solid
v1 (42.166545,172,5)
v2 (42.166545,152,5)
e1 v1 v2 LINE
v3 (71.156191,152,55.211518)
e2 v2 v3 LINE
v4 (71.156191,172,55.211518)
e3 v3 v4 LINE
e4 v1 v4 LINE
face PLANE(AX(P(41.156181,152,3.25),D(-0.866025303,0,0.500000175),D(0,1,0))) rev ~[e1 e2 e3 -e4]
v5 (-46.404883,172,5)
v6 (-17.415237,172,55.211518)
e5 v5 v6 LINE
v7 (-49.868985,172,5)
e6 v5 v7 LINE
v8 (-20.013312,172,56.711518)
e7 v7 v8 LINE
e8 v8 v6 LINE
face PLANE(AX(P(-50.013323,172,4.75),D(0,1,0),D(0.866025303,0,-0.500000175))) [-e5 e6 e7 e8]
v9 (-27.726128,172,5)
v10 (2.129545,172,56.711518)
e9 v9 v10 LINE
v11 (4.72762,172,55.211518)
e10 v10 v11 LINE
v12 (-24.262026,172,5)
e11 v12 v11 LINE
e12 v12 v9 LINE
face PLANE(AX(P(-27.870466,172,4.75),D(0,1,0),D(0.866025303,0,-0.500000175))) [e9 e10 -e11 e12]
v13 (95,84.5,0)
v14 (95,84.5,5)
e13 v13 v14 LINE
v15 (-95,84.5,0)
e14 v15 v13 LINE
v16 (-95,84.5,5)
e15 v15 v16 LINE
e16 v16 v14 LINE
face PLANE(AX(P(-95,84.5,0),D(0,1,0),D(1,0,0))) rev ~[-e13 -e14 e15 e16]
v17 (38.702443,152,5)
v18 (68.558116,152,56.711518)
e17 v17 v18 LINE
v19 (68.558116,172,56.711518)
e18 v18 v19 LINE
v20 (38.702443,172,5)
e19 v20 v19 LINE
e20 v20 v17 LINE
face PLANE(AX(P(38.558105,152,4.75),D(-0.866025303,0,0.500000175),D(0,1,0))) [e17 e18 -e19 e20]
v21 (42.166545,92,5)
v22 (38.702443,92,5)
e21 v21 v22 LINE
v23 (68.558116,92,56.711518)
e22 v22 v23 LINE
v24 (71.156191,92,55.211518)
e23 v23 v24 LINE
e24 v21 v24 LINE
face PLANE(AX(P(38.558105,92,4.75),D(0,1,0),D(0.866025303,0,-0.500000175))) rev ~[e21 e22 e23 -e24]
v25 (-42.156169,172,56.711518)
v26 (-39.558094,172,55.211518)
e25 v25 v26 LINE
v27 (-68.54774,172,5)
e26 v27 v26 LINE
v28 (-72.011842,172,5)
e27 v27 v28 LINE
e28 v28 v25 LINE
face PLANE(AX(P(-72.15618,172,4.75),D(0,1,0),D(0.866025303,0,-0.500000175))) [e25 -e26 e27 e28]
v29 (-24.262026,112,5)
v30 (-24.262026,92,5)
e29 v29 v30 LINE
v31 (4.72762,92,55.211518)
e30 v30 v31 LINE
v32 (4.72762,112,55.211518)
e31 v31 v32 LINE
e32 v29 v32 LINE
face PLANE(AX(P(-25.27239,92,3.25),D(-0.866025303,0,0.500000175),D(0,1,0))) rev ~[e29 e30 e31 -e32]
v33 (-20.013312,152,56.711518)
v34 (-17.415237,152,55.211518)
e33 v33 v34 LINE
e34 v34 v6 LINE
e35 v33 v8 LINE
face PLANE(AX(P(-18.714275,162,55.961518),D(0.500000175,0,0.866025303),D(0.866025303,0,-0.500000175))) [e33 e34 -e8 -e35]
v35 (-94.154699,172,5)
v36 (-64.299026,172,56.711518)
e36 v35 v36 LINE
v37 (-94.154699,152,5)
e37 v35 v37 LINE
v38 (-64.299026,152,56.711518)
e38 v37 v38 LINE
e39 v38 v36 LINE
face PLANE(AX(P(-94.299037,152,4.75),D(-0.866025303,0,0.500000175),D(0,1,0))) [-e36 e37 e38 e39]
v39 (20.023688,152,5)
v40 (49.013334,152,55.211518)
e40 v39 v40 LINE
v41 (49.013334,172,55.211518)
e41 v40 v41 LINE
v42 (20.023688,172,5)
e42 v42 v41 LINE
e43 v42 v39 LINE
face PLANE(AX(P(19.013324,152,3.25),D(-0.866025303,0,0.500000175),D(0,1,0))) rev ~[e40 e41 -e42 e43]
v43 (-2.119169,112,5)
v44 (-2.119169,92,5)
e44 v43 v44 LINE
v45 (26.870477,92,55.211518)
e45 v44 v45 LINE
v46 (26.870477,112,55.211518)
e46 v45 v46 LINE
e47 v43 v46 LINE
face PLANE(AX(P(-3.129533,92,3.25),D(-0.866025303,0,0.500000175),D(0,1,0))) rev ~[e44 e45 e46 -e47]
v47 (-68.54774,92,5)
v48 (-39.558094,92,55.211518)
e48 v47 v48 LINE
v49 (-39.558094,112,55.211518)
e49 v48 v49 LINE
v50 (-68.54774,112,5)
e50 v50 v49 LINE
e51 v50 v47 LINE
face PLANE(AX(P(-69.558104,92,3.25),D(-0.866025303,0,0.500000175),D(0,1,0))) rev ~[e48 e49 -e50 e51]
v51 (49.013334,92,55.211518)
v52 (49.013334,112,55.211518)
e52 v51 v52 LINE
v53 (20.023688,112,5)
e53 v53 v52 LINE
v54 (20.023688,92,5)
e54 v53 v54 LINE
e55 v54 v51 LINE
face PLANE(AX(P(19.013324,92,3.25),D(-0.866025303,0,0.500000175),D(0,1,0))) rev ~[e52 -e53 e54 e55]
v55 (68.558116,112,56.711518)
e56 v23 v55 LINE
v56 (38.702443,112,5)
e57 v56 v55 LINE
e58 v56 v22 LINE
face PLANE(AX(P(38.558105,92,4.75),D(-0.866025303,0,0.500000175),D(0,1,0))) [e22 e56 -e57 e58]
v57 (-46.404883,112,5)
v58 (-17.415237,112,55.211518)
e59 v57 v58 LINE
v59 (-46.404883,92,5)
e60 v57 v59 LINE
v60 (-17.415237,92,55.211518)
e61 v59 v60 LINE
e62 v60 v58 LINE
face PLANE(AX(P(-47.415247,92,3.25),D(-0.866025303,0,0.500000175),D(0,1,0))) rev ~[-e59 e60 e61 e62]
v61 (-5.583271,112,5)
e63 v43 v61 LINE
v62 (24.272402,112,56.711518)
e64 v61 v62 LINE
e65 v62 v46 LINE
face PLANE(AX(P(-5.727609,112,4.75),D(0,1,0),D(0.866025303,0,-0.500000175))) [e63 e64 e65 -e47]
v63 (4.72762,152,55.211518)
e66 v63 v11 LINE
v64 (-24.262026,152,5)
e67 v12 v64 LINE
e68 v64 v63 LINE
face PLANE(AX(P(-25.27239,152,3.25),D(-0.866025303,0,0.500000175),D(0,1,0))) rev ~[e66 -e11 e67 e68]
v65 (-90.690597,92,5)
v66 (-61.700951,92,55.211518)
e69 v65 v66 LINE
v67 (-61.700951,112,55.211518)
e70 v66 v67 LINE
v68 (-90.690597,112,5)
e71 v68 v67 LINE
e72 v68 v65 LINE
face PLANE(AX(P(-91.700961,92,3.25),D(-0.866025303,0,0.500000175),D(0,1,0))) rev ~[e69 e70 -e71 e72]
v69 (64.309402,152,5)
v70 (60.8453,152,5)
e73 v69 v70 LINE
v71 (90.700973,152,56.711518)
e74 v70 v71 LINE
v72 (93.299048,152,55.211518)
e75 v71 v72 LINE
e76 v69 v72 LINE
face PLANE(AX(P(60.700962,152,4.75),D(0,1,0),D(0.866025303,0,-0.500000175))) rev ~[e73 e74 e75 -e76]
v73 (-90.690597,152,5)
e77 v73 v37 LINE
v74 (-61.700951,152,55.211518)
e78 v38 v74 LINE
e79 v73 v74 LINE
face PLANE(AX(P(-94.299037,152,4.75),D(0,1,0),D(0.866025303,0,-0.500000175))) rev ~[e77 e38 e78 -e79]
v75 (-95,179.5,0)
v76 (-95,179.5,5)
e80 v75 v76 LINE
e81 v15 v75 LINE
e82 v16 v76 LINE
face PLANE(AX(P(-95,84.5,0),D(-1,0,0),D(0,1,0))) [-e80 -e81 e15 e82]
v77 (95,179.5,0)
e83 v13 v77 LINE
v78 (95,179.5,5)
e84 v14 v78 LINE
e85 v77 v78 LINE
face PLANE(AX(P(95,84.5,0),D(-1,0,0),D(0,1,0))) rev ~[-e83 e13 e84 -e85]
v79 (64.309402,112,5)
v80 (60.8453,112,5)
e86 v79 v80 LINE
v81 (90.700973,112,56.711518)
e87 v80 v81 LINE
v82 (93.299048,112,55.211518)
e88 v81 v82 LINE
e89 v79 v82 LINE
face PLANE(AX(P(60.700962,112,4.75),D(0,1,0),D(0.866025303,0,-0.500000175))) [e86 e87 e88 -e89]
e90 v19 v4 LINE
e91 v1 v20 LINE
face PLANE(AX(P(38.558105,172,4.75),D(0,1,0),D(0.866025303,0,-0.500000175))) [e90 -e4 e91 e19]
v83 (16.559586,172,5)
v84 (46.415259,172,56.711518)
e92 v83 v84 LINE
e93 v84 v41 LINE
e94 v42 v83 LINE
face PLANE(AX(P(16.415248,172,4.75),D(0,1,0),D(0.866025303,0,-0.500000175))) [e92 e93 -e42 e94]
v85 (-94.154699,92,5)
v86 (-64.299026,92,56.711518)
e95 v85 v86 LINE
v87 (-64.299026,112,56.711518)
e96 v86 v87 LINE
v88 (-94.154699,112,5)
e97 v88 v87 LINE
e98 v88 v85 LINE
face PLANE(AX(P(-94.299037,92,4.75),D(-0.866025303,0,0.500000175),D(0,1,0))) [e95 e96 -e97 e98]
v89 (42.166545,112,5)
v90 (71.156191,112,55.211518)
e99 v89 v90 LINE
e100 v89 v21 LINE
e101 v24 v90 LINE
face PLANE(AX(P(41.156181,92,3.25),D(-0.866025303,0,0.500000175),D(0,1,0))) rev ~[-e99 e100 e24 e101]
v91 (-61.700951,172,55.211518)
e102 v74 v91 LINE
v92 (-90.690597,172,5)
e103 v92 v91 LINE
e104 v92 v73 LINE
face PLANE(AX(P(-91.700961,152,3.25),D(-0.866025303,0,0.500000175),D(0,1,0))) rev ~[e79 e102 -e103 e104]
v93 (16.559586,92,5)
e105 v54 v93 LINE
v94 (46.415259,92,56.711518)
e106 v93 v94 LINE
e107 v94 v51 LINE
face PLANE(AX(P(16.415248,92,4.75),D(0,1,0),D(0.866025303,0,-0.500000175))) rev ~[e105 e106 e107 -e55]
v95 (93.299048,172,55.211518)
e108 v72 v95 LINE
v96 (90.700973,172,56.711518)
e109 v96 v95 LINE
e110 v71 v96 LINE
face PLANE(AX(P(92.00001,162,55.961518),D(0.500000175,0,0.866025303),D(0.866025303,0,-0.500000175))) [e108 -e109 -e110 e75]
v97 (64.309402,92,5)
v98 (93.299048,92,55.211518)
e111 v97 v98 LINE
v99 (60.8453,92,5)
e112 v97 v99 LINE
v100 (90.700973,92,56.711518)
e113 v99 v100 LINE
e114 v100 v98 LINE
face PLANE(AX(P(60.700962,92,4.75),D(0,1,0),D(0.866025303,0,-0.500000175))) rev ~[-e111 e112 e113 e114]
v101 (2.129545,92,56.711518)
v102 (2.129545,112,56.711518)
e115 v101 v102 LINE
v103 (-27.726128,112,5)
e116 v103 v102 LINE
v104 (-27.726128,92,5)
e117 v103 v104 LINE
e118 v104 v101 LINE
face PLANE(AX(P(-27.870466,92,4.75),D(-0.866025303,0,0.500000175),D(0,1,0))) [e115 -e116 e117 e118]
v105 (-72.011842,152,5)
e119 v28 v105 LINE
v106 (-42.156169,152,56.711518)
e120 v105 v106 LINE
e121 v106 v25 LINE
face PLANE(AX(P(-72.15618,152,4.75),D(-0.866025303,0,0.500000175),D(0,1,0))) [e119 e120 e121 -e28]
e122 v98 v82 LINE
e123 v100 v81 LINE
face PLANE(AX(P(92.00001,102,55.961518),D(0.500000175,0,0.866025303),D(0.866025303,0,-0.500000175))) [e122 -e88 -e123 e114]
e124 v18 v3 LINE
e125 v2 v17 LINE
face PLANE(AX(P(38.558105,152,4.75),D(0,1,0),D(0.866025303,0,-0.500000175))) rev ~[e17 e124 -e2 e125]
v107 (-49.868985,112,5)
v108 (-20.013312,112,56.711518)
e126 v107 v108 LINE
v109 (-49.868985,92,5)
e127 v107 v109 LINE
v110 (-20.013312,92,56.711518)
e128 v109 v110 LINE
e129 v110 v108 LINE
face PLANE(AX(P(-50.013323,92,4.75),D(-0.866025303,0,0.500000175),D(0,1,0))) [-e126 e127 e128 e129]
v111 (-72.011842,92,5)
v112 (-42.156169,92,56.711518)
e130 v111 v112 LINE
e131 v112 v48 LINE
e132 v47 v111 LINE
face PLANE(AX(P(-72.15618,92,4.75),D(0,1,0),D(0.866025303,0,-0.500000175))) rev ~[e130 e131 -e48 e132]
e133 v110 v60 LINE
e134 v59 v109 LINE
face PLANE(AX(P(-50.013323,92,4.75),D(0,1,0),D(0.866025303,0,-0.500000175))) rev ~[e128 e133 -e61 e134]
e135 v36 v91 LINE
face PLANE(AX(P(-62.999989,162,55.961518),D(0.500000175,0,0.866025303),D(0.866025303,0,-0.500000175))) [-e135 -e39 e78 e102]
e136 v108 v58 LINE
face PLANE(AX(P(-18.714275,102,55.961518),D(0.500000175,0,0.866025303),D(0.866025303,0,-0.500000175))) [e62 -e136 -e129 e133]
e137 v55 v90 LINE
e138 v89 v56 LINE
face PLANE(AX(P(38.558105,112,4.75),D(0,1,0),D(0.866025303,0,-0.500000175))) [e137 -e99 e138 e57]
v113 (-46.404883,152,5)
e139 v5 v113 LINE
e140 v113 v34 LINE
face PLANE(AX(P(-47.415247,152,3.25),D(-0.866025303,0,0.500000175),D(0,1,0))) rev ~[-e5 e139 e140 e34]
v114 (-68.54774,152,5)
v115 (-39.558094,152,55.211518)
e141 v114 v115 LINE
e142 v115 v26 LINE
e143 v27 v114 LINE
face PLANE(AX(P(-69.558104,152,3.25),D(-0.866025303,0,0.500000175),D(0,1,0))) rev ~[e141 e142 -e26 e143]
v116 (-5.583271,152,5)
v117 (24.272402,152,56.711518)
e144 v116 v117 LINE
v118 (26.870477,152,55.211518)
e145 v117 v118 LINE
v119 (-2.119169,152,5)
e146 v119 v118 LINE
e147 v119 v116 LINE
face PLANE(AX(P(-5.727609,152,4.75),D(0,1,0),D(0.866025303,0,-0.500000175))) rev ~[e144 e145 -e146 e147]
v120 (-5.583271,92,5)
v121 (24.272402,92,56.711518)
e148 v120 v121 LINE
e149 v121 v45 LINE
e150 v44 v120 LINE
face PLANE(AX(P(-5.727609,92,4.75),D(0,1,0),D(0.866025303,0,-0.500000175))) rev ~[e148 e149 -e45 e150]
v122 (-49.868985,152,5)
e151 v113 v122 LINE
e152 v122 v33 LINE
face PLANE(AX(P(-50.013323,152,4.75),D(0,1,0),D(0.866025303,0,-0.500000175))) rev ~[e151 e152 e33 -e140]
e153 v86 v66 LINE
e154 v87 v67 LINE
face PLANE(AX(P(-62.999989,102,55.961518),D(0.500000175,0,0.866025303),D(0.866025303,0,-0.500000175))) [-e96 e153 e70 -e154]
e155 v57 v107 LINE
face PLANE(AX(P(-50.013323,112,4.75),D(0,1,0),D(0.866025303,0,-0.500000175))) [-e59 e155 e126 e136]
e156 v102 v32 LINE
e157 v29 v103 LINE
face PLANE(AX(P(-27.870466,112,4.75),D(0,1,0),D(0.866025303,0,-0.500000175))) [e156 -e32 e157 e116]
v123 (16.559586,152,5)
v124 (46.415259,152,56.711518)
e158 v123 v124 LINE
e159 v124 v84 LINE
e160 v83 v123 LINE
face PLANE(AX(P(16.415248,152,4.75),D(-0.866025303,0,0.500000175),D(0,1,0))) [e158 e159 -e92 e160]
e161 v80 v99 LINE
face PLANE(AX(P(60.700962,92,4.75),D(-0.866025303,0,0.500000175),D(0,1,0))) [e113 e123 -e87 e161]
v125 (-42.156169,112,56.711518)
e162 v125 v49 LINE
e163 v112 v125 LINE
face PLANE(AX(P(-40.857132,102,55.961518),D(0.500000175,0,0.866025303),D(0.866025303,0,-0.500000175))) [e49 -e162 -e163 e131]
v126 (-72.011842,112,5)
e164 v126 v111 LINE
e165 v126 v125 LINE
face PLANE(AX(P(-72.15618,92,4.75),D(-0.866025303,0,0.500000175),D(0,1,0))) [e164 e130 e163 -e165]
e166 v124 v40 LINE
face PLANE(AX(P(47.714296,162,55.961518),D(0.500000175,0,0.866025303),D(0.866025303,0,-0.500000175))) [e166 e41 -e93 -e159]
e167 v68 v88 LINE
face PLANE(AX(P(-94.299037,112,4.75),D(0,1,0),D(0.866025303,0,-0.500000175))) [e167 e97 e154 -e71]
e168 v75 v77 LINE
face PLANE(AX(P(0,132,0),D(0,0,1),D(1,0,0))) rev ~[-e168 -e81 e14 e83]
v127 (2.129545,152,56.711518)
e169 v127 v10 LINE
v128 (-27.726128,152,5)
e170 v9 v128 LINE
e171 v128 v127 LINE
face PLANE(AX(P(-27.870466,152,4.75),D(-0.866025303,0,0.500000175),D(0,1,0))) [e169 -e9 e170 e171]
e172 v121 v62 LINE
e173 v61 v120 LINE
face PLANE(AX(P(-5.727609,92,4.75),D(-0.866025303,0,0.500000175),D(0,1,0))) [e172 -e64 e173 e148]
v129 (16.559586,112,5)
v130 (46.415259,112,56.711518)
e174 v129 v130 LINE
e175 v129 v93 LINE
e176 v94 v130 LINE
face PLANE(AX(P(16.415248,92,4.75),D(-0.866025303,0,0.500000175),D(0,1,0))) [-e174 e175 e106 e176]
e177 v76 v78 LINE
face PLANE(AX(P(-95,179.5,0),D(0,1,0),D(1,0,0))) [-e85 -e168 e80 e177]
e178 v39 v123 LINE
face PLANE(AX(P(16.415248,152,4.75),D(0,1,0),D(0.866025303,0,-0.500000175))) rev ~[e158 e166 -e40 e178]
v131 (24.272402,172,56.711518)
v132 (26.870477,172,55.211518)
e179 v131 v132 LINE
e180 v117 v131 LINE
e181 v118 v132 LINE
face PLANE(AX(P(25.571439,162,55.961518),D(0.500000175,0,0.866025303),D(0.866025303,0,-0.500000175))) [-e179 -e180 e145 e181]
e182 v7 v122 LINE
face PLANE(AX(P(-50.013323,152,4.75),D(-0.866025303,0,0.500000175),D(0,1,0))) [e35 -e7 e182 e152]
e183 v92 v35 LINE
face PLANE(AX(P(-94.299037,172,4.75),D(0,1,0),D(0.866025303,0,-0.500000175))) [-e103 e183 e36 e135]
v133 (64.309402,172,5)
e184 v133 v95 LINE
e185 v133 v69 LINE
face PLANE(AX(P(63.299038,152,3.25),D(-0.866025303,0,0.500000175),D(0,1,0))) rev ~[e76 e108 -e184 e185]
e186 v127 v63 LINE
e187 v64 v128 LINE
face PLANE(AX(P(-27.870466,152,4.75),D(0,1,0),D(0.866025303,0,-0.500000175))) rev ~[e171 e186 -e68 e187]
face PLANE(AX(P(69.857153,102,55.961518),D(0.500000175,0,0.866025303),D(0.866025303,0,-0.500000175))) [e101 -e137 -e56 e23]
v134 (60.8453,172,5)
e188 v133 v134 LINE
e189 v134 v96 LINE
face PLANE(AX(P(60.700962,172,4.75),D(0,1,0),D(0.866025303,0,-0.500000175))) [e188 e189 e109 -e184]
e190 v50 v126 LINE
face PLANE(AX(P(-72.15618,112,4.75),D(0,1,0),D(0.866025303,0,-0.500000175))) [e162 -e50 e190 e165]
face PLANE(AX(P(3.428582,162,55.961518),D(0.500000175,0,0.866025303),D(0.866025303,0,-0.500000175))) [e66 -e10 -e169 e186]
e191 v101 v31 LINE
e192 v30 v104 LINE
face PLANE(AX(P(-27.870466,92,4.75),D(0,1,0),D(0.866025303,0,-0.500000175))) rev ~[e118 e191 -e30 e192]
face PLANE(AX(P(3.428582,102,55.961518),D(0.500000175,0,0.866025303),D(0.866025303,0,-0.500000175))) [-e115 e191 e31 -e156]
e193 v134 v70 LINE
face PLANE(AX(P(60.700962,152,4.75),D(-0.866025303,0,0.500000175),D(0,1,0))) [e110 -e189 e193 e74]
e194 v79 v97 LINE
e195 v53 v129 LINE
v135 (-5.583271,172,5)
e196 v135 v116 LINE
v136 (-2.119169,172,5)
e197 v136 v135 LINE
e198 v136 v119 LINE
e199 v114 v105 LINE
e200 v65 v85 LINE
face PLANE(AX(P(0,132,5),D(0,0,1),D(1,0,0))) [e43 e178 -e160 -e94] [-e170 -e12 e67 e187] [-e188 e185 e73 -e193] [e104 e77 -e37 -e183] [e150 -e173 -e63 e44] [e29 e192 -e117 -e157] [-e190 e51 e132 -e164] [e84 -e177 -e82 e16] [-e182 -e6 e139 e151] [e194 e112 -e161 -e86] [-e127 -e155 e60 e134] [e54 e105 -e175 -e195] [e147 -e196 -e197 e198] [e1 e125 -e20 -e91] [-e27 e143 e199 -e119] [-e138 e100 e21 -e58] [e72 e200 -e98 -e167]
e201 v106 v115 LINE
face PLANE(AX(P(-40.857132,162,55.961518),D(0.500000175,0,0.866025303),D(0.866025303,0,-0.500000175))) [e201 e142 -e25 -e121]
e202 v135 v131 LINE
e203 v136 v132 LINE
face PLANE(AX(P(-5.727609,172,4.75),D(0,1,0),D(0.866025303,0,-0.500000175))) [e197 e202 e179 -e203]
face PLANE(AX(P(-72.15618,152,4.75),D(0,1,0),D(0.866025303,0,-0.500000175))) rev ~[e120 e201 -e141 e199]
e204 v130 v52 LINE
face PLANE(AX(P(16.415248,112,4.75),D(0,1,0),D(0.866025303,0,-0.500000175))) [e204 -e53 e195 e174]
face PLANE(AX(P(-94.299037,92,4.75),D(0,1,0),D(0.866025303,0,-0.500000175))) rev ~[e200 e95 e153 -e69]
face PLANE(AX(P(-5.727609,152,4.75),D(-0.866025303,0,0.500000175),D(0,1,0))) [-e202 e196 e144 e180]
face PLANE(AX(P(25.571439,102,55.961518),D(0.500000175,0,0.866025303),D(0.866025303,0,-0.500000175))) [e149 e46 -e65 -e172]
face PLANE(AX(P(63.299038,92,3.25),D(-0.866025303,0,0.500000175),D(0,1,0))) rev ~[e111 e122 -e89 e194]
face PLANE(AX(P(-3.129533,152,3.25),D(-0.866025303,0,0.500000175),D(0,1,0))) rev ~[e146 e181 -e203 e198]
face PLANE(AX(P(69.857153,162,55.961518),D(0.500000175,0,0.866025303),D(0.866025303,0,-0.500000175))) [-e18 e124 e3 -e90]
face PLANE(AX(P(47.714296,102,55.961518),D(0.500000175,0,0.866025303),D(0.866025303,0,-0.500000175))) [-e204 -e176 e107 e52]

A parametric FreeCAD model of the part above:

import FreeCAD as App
import Part
import Sketcher


def add_polygon(sketch, points):
    """Adds a closed chain of lines whose ends are joined by coincident constraints."""
    first, n = sketch.GeometryCount, len(points)
    for a, b in zip(points, points[1:] + points[:1]):
        sketch.addGeometry(Part.LineSegment(App.Vector(*a, 0), App.Vector(*b, 0)), False)
    for i in range(n):
        sketch.addConstraint(Sketcher.Constraint("Coincident", first + i, 2, first + (i + 1) % n, 1))

doc = App.newDocument("Part")
body = doc.addObject("PartDesign::Body", "Body")

sketch1 = body.newObject("Sketcher::SketchObject", "Sketch")
sketch1.AttachmentSupport = (doc.getObject("XY_Plane"), [""])
sketch1.MapMode = "FlatFace"
add_polygon(sketch1, [(-95, 48), (-95, -48), (95, -48), (95, 48)])
sketch1.addConstraint(Sketcher.Constraint("Vertical", 0))
sketch1.addConstraint(Sketcher.Constraint("Horizontal", 1))
sketch1.addConstraint(Sketcher.Constraint("Vertical", 2))
sketch1.addConstraint(Sketcher.Constraint("Horizontal", 3))
sketch1.addConstraint(Sketcher.Constraint("Symmetric", 0, 2, 2, 2, -1, 1))
sketch1.addConstraint(Sketcher.Constraint("DistanceX", 1, 1, 1, 2, 190.0))
sketch1.addConstraint(Sketcher.Constraint("DistanceY", 0, 2, 0, 1, 95.0))
pad1 = body.newObject("PartDesign::Pad", "Pad")
pad1.Profile = sketch1
pad1.Length = 5

sketch2 = body.newObject("Sketcher::SketchObject", "Sketch001")
sketch2.Placement = App.Placement(App.Vector(62, 0, 4), App.Rotation(App.Vector(0.866025303, 0, -0.500000175), App.Vector(0, 1, 0), App.Vector(0.500000175, 0, 0.866025303), "ZXY"))
add_polygon(sketch2, [(-1.5, 40), (-1.5, 20), (1.5, 20), (1.5, 40)])
add_polygon(sketch2, [(-1.5, -20), (-1.5, -40), (1.5, -40), (1.5, -20)])
sketch2.addConstraint(Sketcher.Constraint("Vertical", 0))
sketch2.addConstraint(Sketcher.Constraint("Horizontal", 1))
sketch2.addConstraint(Sketcher.Constraint("Vertical", 2))
sketch2.addConstraint(Sketcher.Constraint("Horizontal", 3))
sketch2.addConstraint(Sketcher.Constraint("Vertical", 4))
sketch2.addConstraint(Sketcher.Constraint("Horizontal", 5))
sketch2.addConstraint(Sketcher.Constraint("Vertical", 6))
sketch2.addConstraint(Sketcher.Constraint("Horizontal", 7))
sketch2.addConstraint(Sketcher.Constraint("Symmetric", 2, 2, 4, 2, -1, 1))
sketch2.addConstraint(Sketcher.Constraint("Symmetric", 0, 2, 6, 2, -1, 1))
sketch2.addConstraint(Sketcher.Constraint("Vertical", 3, 2, 4, 2))
sketch2.addConstraint(Sketcher.Constraint("DistanceX", 1, 1, 1, 2, 3.0))
sketch2.addConstraint(Sketcher.Constraint("DistanceY", 0, 2, 0, 1, 20.0))
sketch2.addConstraint(Sketcher.Constraint("DistanceY", -1, 1, 0, 2, 20.0))
pad2 = body.newObject("PartDesign::Pad", "Pad001")
pad2.Profile = sketch2
pad2.Length = 60
doc.recompute()

linearpattern = body.newObject("PartDesign::LinearPattern", "LinearPattern")
linearpattern.Originals = [pad2]
linearpattern.Direction = (doc.getObject("X_Axis"), [""])
linearpattern.Mode = "offset"
linearpattern.Offset = 22.142857
linearpattern.Occurrences = 8
linearpattern.Reversed = True
body.Tip = linearpattern
body2 = doc.addObject("PartDesign::Body", "Body001")
doc.recompute()

body.Placement = App.Placement(App.Vector(0, 132, 0), App.Rotation(App.Vector(0, 0, 1), 0))
boolean = body2.newObject("PartDesign::Boolean", "Boolean")
boolean.Type = "Fuse"
boolean.addObjects([body])

doc.recompute()
